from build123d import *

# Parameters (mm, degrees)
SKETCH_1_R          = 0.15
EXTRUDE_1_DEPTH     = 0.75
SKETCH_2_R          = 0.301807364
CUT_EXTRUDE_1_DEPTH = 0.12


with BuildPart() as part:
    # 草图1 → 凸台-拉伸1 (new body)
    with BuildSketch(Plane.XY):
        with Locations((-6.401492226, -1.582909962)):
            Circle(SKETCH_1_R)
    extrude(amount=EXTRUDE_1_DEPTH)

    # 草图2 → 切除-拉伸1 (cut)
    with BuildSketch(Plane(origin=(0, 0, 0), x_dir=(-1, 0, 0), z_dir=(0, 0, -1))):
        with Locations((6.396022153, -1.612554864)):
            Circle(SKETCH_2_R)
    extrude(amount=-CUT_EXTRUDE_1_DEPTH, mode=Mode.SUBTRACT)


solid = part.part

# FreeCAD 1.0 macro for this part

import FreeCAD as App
import Part
import Sketcher
from FreeCAD import Vector
Q = App.Units.Quantity

doc = App.newDocument("Part")
body = doc.addObject("PartDesign::Body", "Body")

# Sketch on XY plane
sketch1 = body.newObject("Sketcher::SketchObject", "Sketch")
sketch1.AttachmentSupport = (doc.getObject("XY_Plane"), [""])
sketch1.MapMode = "FlatFace"
sketch1.addGeometry(Part.Circle(Vector(-6.401492, -1.58291, 0), Vector(0, 0, 1), 0.15), False)
sketch1.addConstraint([
    Sketcher.Constraint("Diameter", 0, Q("0.3 mm")),
    Sketcher.Constraint("DistanceY", 0, 3, -1, 1, Q("1.58291 mm")),
    Sketcher.Constraint("DistanceX", 0, 3, -1, 1, Q("6.401492 mm")),
])
pad1 = body.newObject("PartDesign::Pad", "Pad")
pad1.Profile = sketch1
pad1.Length = 0.75

# Sketch on XY plane
sketch2 = body.newObject("Sketcher::SketchObject", "Sketch001")
sketch2.AttachmentSupport = (doc.getObject("XY_Plane"), [""])
sketch2.MapMode = "FlatFace"
sketch2.addGeometry(Part.Circle(Vector(-6.396022, -1.612555, 0), Vector(0, 0, 1), 0.301807), False)
sketch2.addConstraint([
    Sketcher.Constraint("Diameter", 0, Q("0.603615 mm")),
    Sketcher.Constraint("DistanceX", 0, 3, -1, 1, Q("6.396022 mm")),
    Sketcher.Constraint("DistanceY", 0, 3, -1, 1, Q("1.612555 mm")),
])
pocket1 = body.newObject("PartDesign::Pocket", "Pocket")
pocket1.Profile = sketch2
pocket1.Length = 0.12
pocket1.Reversed = True

doc.recompute()
